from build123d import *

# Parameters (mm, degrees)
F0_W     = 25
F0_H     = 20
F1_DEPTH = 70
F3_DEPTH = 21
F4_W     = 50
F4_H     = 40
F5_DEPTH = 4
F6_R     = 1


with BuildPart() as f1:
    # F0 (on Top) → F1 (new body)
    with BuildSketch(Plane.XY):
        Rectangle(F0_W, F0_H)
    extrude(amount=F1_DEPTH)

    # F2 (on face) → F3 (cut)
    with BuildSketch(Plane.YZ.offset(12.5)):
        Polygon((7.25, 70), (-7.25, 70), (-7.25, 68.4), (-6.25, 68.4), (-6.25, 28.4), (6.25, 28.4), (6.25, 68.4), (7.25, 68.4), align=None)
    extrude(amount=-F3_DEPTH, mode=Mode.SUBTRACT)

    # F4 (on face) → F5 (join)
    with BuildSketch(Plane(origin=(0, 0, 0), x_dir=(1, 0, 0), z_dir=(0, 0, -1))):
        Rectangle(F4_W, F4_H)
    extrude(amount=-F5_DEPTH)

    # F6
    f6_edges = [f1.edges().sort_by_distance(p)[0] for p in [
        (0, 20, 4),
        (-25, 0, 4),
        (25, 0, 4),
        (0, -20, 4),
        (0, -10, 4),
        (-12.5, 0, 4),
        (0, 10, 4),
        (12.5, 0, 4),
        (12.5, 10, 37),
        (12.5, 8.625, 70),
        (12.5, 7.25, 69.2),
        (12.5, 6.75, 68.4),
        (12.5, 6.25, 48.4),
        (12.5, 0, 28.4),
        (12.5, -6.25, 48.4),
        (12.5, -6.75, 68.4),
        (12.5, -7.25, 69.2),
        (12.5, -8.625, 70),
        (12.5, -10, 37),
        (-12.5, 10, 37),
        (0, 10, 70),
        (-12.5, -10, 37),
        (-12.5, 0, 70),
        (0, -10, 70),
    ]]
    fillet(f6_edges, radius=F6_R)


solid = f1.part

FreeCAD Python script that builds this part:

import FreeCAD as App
import Part
import Sketcher
from FreeCAD import Vector
Q = App.Units.Quantity


def edges_at(feature, points):
    """Names of the edges that pass closest to the given points."""
    edges = feature.Shape.Edges
    near = lambda p: min(range(len(edges)), key=lambda i: edges[i].distToShape(Part.Vertex(*p))[0])
    return sorted({f"Edge{near(p) + 1}" for p in points})


def add_polygon(sketch, points):
    """Adds a closed chain of lines whose ends are joined by coincident constraints."""
    first, n = sketch.GeometryCount, len(points)
    for a, b in zip(points, points[1:] + points[:1]):
        sketch.addGeometry(Part.LineSegment(App.Vector(*a, 0), App.Vector(*b, 0)), False)
    for i in range(n):
        sketch.addConstraint(Sketcher.Constraint("Coincident", first + i, 2, first + (i + 1) % n, 1))

doc = App.newDocument("Part")
body = doc.addObject("PartDesign::Body", "Body")

sketch1 = body.newObject("Sketcher::SketchObject", "Sketch")
sketch1.AttachmentSupport = (doc.getObject("XY_Plane"), [""])
sketch1.MapMode = "FlatFace"
add_polygon(sketch1, [(-12, 10), (-12, -10), (12, -10), (12, 10)])
sketch1.addConstraint([
    Sketcher.Constraint("Vertical", 0),
    Sketcher.Constraint("Horizontal", 1),
    Sketcher.Constraint("Vertical", 2),
    Sketcher.Constraint("Horizontal", 3),
    Sketcher.Constraint("Symmetric", 0, 2, 2, 2, -1, 1),
    Sketcher.Constraint("DistanceX", 1, 1, 1, 2, Q("25 mm")),
    Sketcher.Constraint("DistanceY", 0, 2, 0, 1, Q("20 mm")),
])
pad1 = body.newObject("PartDesign::Pad", "Pad")
pad1.Profile = sketch1
pad1.Length = 70

sketch2 = body.newObject("Sketcher::SketchObject", "Sketch001")
sketch2.AttachmentSupport = (doc.getObject("YZ_Plane"), [""])
sketch2.MapMode = "FlatFace"
sketch2.AttachmentOffset = App.Placement(Vector(0, 0, 12.5), App.Rotation())
add_polygon(sketch2, [(7.2, 70), (-7.2, 70), (-7.2, 68.4), (-6.2, 68.4), (-6.2, 28.4), (6.2, 28.4), (6.2, 68.4), (7.2, 68.4)])
sketch2.addConstraint([
    Sketcher.Constraint("Horizontal", 0),
    Sketcher.Constraint("Vertical", 1),
    Sketcher.Constraint("Horizontal", 2),
    Sketcher.Constraint("Vertical", 3),
    Sketcher.Constraint("Horizontal", 4),
    Sketcher.Constraint("Vertical", 5),
    Sketcher.Constraint("Horizontal", 6),
    Sketcher.Constraint("Vertical", 7),
    Sketcher.Constraint("Symmetric", 2, 2, 5, 2, -2),
    Sketcher.Constraint("Equal", 2, 6),
    Sketcher.Constraint("DistanceX", 2, 1, 2, 2, Q("1 mm")),
    Sketcher.Constraint("DistanceY", 3, 2, 3, 1, Q("40 mm")),
    Sketcher.Constraint("DistanceX", 0, 2, 0, 1, Q("14.5 mm")),
    Sketcher.Constraint("DistanceY", 1, 2, 1, 1, Q("1.6 mm")),
    Sketcher.Constraint("DistanceY", -1, 1, 0, 2, Q("70 mm")),
])
pocket1 = body.newObject("PartDesign::Pocket", "Pocket")
pocket1.Profile = sketch2
pocket1.Length = 21

sketch3 = body.newObject("Sketcher::SketchObject", "Sketch002")
sketch3.AttachmentSupport = (doc.getObject("XY_Plane"), [""])
sketch3.MapMode = "FlatFace"
add_polygon(sketch3, [(-25, -20), (-25, 20), (25, 20), (25, -20)])
sketch3.addConstraint([
    Sketcher.Constraint("Vertical", 0),
    Sketcher.Constraint("Horizontal", 1),
    Sketcher.Constraint("Vertical", 2),
    Sketcher.Constraint("Horizontal", 3),
    Sketcher.Constraint("Symmetric", 0, 2, 2, 2, -1, 1),
    Sketcher.Constraint("DistanceX", 1, 1, 1, 2, Q("50 mm")),
    Sketcher.Constraint("DistanceY", 0, 1, 0, 2, Q("40 mm")),
])
pad2 = body.newObject("PartDesign::Pad", "Pad001")
pad2.Profile = sketch3
pad2.Length = 4
doc.recompute()

fillet = body.newObject("PartDesign::Fillet", "Fillet")
fillet.Base = (pad2, edges_at(pad2, [
    (0, 20, 4),
    (-25, 0, 4),
    (25, 0, 4),
    (0, -20, 4),
    (0, -10, 4),
    (-12.5, 0, 4),
    (0, 10, 4),
    (12.5, 0, 4),
    (12.5, 10, 37),
    (12.5, 8.625, 70),
    (12.5, 7.25, 69.2),
    (12.5, 6.75, 68.4),
    (12.5, 6.25, 48.4),
    (12.5, 0, 28.4),
    (12.5, -6.25, 48.4),
    (12.5, -6.75, 68.4),
    (12.5, -7.25, 69.2),
    (12.5, -8.625, 70),
    (12.5, -10, 37),
    (-12.5, 10, 37),
    (0, 10, 70),
    (-12.5, -10, 37),
    (-12.5, 0, 70),
    (0, -10, 70),
]))
fillet.Radius = 1

doc.recompute()
